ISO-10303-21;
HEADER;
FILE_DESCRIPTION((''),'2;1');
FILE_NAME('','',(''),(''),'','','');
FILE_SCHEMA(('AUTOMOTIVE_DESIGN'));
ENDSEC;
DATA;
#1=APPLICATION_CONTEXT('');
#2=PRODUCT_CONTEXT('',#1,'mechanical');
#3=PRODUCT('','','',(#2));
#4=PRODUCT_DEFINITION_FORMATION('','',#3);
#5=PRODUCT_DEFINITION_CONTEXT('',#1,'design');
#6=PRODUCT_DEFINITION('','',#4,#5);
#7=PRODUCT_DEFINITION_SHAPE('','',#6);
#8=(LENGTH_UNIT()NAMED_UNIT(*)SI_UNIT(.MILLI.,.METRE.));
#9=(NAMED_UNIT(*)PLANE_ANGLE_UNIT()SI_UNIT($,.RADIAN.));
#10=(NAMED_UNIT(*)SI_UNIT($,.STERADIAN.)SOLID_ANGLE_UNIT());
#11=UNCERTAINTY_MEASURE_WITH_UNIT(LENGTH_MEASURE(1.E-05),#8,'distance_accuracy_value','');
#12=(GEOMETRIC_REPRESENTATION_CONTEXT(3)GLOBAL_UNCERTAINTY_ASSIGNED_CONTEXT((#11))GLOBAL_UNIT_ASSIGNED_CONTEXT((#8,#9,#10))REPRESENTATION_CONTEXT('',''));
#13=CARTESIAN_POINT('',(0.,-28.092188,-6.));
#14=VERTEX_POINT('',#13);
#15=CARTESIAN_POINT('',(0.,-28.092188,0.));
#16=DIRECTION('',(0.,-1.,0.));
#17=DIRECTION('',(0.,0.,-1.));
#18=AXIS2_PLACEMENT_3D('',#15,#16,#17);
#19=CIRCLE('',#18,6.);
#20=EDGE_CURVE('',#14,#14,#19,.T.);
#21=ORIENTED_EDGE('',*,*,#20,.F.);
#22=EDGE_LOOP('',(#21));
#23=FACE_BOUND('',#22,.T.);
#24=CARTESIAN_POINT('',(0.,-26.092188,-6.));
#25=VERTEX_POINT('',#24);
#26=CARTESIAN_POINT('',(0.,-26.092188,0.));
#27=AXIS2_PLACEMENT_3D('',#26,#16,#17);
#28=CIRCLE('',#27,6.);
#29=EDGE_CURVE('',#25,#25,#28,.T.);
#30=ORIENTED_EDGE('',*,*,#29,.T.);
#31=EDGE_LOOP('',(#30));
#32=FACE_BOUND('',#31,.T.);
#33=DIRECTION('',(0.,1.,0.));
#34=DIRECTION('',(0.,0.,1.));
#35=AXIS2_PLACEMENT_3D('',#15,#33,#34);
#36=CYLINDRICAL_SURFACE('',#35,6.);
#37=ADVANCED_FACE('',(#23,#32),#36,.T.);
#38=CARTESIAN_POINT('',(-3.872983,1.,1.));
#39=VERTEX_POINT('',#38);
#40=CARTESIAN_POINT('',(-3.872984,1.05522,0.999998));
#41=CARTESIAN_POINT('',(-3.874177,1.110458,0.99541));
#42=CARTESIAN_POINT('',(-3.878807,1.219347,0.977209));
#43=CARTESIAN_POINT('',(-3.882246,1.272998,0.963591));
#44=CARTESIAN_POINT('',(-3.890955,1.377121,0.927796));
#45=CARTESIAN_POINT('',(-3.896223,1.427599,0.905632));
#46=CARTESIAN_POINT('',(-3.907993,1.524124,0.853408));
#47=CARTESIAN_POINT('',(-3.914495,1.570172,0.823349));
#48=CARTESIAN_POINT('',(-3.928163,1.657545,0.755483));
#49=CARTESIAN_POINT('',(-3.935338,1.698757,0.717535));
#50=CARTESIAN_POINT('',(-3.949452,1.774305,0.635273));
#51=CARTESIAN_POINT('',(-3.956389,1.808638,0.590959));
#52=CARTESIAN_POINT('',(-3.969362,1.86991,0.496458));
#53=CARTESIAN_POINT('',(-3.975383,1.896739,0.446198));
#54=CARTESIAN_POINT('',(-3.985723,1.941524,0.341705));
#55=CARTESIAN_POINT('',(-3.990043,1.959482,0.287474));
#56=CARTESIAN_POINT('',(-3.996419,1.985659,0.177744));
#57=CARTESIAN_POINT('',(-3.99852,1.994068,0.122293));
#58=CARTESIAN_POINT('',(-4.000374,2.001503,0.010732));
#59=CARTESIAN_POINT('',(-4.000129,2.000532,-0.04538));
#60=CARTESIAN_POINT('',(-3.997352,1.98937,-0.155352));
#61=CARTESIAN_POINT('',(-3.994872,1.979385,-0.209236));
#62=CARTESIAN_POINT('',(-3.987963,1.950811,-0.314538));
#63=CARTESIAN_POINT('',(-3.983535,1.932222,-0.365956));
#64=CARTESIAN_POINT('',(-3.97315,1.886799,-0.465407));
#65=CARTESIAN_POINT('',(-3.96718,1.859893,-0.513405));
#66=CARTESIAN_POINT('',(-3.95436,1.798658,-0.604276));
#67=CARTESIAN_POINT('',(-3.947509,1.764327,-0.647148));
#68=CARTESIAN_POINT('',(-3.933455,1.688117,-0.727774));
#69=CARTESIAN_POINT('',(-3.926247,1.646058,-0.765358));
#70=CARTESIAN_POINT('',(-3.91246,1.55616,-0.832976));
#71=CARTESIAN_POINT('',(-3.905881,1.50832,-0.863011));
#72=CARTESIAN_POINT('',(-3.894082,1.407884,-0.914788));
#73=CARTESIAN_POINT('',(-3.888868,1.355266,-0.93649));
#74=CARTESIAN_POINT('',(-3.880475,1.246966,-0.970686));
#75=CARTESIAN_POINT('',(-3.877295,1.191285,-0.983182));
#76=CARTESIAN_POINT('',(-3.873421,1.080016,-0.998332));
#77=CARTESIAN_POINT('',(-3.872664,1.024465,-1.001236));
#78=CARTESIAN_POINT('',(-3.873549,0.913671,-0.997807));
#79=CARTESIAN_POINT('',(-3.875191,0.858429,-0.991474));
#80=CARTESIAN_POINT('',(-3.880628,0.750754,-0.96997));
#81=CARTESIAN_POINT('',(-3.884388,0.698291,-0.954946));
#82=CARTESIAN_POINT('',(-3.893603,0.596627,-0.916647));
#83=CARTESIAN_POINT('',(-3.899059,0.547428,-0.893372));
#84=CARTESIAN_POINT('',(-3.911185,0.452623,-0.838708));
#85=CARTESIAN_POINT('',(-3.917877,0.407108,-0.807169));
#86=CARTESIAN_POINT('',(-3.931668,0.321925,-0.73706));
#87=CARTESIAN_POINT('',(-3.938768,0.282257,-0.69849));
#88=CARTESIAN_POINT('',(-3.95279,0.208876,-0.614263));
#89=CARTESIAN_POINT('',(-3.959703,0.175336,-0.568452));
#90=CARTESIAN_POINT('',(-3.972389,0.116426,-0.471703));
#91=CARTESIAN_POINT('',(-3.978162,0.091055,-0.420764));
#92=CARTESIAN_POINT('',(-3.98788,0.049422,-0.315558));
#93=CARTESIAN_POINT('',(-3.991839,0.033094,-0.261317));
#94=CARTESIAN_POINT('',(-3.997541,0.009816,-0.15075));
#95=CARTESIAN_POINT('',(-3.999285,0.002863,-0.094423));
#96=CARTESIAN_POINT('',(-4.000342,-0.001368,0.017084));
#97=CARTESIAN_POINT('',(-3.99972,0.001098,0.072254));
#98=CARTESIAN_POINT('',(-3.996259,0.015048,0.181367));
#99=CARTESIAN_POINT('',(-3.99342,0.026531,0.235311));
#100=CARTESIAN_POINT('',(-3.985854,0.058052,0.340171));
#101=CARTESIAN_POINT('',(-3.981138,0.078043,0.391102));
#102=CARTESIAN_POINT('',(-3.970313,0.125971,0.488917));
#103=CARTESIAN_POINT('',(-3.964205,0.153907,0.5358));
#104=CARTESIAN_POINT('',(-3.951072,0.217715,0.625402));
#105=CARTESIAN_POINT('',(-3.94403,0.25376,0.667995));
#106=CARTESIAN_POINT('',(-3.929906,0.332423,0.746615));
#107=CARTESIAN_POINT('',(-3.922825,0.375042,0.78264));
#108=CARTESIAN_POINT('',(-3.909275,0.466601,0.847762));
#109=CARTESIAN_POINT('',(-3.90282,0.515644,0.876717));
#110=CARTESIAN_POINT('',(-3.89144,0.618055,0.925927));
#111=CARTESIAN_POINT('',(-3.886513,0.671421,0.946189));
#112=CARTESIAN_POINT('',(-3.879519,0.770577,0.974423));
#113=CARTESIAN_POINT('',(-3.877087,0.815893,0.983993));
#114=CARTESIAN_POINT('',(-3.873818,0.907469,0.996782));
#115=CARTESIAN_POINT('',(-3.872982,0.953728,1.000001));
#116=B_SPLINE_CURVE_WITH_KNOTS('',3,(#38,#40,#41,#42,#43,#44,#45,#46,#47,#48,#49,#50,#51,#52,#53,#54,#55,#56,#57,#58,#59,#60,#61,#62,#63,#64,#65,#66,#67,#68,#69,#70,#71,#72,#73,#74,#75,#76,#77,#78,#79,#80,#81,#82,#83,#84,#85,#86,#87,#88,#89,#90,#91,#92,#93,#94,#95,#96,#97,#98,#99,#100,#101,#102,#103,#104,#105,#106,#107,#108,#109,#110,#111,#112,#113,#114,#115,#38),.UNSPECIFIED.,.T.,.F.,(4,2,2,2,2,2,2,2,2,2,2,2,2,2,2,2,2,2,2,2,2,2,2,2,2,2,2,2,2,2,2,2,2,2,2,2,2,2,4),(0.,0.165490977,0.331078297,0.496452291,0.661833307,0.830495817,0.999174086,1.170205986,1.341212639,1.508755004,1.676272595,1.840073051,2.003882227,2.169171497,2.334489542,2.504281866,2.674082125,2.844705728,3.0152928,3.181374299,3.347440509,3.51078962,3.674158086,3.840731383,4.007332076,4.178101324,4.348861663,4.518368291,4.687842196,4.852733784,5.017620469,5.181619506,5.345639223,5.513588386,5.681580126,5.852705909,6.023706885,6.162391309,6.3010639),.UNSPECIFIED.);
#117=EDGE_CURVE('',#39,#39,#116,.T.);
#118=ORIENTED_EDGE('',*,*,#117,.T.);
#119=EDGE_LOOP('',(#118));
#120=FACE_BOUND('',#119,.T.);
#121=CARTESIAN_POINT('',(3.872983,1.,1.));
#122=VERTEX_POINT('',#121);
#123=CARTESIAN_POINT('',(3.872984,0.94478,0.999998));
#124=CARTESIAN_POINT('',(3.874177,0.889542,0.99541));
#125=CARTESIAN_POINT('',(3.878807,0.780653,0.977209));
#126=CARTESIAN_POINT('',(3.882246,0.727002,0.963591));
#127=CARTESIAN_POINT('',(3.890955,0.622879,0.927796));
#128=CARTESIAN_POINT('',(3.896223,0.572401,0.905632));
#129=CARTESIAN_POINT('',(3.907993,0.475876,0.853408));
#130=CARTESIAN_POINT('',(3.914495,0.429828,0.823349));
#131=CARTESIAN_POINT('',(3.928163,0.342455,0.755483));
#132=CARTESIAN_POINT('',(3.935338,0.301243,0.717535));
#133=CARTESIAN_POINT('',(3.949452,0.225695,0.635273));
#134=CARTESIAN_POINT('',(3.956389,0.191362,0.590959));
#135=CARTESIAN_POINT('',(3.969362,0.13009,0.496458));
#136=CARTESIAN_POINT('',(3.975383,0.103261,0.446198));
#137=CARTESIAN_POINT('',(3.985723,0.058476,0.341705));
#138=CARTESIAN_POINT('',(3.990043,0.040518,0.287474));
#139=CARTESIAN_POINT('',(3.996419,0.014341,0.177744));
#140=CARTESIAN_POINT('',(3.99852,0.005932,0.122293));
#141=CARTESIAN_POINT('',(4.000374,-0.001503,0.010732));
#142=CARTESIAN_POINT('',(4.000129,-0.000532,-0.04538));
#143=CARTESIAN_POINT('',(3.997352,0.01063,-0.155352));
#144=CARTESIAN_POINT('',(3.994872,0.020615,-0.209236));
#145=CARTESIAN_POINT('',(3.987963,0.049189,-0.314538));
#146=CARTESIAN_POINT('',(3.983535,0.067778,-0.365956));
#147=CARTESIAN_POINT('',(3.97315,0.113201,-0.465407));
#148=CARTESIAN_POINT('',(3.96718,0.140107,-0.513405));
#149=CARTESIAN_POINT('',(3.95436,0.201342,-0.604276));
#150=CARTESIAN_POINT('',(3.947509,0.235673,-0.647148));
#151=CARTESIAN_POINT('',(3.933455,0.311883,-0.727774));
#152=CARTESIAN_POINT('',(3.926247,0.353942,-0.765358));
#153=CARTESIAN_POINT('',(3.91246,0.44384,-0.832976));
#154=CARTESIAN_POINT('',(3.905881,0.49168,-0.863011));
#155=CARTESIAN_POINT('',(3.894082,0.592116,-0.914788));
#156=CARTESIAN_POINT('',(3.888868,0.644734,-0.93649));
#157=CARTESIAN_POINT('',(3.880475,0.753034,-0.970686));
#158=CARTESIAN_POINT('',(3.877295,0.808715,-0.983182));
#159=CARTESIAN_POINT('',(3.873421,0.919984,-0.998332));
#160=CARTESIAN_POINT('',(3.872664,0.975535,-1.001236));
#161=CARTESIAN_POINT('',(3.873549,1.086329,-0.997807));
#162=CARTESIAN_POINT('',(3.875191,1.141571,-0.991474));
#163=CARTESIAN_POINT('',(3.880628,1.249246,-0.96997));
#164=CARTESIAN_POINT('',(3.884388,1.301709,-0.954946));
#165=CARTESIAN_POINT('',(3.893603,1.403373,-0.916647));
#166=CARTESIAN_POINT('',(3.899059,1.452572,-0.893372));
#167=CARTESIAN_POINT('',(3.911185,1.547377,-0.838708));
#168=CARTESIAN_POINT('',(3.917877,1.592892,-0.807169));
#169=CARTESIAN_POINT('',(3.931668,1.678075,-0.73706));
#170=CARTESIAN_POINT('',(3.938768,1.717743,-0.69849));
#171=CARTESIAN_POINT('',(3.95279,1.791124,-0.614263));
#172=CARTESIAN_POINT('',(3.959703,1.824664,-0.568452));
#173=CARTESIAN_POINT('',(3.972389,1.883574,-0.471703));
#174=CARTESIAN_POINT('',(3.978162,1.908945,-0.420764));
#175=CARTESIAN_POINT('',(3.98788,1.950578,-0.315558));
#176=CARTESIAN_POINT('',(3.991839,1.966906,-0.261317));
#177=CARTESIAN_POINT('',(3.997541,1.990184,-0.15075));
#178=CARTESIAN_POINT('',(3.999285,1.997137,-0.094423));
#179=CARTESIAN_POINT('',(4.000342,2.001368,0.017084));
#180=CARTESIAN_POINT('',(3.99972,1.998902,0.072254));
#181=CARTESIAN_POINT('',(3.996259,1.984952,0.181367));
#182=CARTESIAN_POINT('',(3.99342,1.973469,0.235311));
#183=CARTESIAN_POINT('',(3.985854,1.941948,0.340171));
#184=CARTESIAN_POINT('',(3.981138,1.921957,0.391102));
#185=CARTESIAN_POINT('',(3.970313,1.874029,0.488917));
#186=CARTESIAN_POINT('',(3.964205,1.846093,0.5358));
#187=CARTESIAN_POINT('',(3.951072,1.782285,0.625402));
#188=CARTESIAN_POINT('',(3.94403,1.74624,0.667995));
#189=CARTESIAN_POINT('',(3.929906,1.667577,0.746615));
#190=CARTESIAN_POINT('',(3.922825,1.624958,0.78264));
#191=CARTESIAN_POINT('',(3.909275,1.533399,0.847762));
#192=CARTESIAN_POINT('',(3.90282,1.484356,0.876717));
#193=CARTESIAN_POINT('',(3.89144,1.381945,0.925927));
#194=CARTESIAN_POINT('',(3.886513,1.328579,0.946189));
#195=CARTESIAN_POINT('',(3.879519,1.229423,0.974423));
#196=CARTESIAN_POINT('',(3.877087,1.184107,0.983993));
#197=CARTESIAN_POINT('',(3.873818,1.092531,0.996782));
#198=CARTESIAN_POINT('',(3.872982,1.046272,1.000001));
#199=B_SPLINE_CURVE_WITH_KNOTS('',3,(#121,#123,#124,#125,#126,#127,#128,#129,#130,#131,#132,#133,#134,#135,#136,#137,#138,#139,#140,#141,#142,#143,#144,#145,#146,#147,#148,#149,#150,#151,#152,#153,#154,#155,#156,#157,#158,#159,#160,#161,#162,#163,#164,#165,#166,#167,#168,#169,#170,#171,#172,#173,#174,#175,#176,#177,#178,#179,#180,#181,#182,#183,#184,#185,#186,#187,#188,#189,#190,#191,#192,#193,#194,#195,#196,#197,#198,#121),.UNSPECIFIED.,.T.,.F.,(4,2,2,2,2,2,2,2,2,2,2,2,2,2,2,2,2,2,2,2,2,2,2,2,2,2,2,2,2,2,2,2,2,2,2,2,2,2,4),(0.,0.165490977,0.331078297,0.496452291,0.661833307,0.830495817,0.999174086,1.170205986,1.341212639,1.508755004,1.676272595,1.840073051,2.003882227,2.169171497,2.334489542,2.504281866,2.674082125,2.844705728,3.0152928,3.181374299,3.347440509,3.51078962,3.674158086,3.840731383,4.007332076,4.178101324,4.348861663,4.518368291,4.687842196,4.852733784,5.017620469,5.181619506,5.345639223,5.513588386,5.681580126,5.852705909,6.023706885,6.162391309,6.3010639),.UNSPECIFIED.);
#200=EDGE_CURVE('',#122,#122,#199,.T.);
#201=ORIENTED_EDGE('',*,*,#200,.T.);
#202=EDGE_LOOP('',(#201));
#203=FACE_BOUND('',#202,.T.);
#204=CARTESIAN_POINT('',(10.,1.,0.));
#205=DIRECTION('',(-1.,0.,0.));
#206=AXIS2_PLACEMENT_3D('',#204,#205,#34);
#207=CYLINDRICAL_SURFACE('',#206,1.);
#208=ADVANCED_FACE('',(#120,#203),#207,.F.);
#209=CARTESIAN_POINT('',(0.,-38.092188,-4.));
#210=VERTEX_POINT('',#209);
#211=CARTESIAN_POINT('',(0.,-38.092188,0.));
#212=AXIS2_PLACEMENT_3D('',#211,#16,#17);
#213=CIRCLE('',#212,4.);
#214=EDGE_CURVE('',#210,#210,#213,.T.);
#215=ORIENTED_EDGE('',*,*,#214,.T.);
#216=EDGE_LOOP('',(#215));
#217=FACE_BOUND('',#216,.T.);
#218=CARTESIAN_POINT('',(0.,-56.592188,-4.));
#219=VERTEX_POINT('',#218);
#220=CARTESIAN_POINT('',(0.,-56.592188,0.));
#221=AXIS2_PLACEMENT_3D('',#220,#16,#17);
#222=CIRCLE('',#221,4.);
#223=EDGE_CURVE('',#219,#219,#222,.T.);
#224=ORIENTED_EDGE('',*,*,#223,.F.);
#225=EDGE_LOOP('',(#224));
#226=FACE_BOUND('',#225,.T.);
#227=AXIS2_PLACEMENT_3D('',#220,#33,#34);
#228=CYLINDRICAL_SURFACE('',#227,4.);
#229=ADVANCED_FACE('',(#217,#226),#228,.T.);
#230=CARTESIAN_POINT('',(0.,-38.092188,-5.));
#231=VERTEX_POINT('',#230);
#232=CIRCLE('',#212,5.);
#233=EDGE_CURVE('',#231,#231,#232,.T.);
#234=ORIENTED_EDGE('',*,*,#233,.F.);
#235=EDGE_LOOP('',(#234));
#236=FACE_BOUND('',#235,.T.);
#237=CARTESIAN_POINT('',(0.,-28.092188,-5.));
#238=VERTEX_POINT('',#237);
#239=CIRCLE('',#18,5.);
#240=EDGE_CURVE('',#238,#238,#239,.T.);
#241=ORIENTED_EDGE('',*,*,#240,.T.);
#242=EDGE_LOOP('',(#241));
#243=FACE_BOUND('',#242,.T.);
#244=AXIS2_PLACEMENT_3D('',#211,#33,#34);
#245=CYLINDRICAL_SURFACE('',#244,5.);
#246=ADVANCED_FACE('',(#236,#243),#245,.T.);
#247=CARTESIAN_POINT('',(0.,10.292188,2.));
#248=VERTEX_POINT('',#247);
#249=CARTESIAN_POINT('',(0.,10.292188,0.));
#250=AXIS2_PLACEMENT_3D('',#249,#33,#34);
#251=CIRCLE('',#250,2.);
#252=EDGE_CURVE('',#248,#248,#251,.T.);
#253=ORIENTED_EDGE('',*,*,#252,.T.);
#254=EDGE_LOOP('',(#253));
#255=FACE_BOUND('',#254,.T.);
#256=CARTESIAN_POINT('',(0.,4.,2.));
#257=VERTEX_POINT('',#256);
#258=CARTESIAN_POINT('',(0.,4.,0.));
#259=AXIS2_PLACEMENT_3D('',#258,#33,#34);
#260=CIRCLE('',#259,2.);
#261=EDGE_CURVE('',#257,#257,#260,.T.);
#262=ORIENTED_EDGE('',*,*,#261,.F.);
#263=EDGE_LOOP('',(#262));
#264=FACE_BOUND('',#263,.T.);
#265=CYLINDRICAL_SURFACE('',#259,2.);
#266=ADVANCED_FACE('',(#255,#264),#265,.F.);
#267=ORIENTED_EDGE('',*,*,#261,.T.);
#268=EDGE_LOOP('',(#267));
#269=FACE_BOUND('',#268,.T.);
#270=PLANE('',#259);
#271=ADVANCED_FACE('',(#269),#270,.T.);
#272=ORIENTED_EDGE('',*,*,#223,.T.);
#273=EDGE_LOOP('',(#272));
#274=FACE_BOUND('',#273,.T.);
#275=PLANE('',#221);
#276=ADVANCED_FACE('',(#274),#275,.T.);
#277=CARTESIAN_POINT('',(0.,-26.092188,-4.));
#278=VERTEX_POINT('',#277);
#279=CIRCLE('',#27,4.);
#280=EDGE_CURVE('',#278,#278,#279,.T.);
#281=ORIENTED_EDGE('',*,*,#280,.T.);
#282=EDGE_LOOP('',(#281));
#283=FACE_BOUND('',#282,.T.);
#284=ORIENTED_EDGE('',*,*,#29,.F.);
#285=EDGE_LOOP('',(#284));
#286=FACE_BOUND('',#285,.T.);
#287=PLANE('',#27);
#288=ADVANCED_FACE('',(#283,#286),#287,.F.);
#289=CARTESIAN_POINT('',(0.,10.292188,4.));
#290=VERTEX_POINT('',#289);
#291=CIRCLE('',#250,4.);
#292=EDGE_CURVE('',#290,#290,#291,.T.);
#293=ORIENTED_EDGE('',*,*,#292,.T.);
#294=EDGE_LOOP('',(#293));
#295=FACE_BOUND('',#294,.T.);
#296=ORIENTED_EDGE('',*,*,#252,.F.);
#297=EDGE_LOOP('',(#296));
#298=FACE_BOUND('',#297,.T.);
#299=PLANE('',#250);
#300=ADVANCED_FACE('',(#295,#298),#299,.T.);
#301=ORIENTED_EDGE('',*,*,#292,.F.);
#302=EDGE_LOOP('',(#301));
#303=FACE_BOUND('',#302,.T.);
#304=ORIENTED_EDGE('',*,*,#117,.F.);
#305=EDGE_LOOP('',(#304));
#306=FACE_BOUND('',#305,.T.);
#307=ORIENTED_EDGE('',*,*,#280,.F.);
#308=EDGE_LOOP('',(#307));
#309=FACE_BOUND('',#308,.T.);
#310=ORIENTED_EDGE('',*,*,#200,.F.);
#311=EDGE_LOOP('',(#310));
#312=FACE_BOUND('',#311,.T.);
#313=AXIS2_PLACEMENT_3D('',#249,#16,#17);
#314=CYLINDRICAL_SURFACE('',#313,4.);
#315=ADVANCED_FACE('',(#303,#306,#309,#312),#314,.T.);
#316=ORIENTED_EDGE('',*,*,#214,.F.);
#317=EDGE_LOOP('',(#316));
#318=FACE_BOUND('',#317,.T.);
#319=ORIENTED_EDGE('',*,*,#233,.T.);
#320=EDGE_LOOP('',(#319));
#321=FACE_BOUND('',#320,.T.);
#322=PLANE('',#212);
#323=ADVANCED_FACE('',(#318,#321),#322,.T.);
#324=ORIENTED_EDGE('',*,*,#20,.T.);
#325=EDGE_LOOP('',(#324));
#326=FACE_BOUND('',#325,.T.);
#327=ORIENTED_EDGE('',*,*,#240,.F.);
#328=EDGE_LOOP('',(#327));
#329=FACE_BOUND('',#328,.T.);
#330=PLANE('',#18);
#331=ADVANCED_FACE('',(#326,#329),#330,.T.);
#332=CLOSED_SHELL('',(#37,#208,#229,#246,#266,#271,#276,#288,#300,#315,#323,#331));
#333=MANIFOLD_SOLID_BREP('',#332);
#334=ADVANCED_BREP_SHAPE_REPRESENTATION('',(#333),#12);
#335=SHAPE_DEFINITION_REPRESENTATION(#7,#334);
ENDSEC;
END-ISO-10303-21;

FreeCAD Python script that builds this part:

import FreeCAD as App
import Part
import Sketcher

doc = App.newDocument("Part")
body = doc.addObject("PartDesign::Body", "Body")

# Sketch on XZ plane
sketch1 = body.newObject("Sketcher::SketchObject", "Sketch")
sketch1.AttachmentSupport = (doc.getObject("XZ_Plane"), [""])
sketch1.MapMode = "FlatFace"
sketch1.addGeometry(Part.Circle(App.Vector(0, 0, 0), App.Vector(0, 0, 1), 4), False)
sketch1.addConstraint([
    Sketcher.Constraint("Coincident", 0, 3, -1, 1),
    Sketcher.Constraint("Diameter", 0, 8.0),
])
pad1 = body.newObject("PartDesign::Pad", "Pad")
pad1.Profile = sketch1
pad1.Length = 10.292188
pad1.Reversed = True

# Sketch on XZ plane
sketch2 = body.newObject("Sketcher::SketchObject", "Sketch001")
sketch2.AttachmentSupport = (doc.getObject("XZ_Plane"), [""])
sketch2.MapMode = "FlatFace"
sketch2.AttachmentOffset = App.Placement(App.Vector(0, 0, -10.292188), App.Rotation())
sketch2.addGeometry(Part.Circle(App.Vector(0, 0, 0), App.Vector(0, 0, 1), 2), False)
sketch2.addConstraint([
    Sketcher.Constraint("Coincident", 0, 3, -1, 1),
    Sketcher.Constraint("Diameter", 0, 4.0),
])
pocket1 = body.newObject("PartDesign::Pocket", "Pocket")
pocket1.Profile = sketch2
pocket1.Length = 6.292187
pocket1.Reversed = True

# Sketch on XZ plane
sketch3 = body.newObject("Sketcher::SketchObject", "Sketch002")
sketch3.AttachmentSupport = (doc.getObject("XZ_Plane"), [""])
sketch3.MapMode = "FlatFace"
sketch3.AttachmentOffset = App.Placement(App.Vector(0, 0, 26.092188), App.Rotation())
sketch3.addGeometry(Part.Circle(App.Vector(0, 0, 0), App.Vector(0, 0, 1), 4), False)
sketch3.addConstraint([
    Sketcher.Constraint("Coincident", 0, 3, -1, 1),
    Sketcher.Constraint("Diameter", 0, 8.0),
])
pad2 = body.newObject("PartDesign::Pad", "Pad001")
pad2.Profile = sketch3
pad2.Length = 26.092188
pad2.Reversed = True

# Sketch on YZ plane
sketch4 = body.newObject("Sketcher::SketchObject", "Sketch003")
sketch4.AttachmentSupport = (doc.getObject("YZ_Plane"), [""])
sketch4.MapMode = "FlatFace"
sketch4.addGeometry(Part.Circle(App.Vector(1, 0, 0), App.Vector(0, 0, 1), 1), False)
sketch4.addConstraint([
    Sketcher.Constraint("PointOnObject", 0, 3, -1),
    Sketcher.Constraint("Diameter", 0, 2.0),
    Sketcher.Constraint("DistanceX", -1, 1, 0, 3, 1.0),
])
pocket2 = body.newObject("PartDesign::Pocket", "Pocket001")
pocket2.Profile = sketch4
pocket2.Type = "ThroughAll"
pocket2.Midplane = True

# Sketch on XZ plane
sketch5 = body.newObject("Sketcher::SketchObject", "Sketch004")
sketch5.AttachmentSupport = (doc.getObject("XZ_Plane"), [""])
sketch5.MapMode = "FlatFace"
sketch5.AttachmentOffset = App.Placement(App.Vector(0, 0, 26.092188), App.Rotation())
sketch5.addGeometry(Part.Circle(App.Vector(0, 0, 0), App.Vector(0, 0, 1), 6), False)
sketch5.addConstraint([
    Sketcher.Constraint("Coincident", 0, 3, -1, 1),
    Sketcher.Constraint("Diameter", 0, 12.0),
])
pad3 = body.newObject("PartDesign::Pad", "Pad002")
pad3.Profile = sketch5
pad3.Length = 2

# Sketch on XZ plane
sketch6 = body.newObject("Sketcher::SketchObject", "Sketch005")
sketch6.AttachmentSupport = (doc.getObject("XZ_Plane"), [""])
sketch6.MapMode = "FlatFace"
sketch6.AttachmentOffset = App.Placement(App.Vector(0, 0, 28.092188), App.Rotation())
sketch6.addGeometry(Part.Circle(App.Vector(0, 0, 0), App.Vector(0, 0, 1), 5), False)
sketch6.addConstraint([
    Sketcher.Constraint("Coincident", 0, 3, -1, 1),
    Sketcher.Constraint("Diameter", 0, 10.0),
])
pad4 = body.newObject("PartDesign::Pad", "Pad003")
pad4.Profile = sketch6
pad4.Length = 10

# Sketch on XZ plane
sketch7 = body.newObject("Sketcher::SketchObject", "Sketch006")
sketch7.AttachmentSupport = (doc.getObject("XZ_Plane"), [""])
sketch7.MapMode = "FlatFace"
sketch7.AttachmentOffset = App.Placement(App.Vector(0, 0, 56.592188), App.Rotation())
sketch7.addGeometry(Part.Circle(App.Vector(0, 0, 0), App.Vector(0, 0, 1), 4), False)
sketch7.addConstraint([
    Sketcher.Constraint("Coincident", 0, 3, -1, 1),
    Sketcher.Constraint("Diameter", 0, 8.0),
])
pad5 = body.newObject("PartDesign::Pad", "Pad004")
pad5.Profile = sketch7
pad5.Length = 18.5
pad5.Reversed = True

doc.recompute()
